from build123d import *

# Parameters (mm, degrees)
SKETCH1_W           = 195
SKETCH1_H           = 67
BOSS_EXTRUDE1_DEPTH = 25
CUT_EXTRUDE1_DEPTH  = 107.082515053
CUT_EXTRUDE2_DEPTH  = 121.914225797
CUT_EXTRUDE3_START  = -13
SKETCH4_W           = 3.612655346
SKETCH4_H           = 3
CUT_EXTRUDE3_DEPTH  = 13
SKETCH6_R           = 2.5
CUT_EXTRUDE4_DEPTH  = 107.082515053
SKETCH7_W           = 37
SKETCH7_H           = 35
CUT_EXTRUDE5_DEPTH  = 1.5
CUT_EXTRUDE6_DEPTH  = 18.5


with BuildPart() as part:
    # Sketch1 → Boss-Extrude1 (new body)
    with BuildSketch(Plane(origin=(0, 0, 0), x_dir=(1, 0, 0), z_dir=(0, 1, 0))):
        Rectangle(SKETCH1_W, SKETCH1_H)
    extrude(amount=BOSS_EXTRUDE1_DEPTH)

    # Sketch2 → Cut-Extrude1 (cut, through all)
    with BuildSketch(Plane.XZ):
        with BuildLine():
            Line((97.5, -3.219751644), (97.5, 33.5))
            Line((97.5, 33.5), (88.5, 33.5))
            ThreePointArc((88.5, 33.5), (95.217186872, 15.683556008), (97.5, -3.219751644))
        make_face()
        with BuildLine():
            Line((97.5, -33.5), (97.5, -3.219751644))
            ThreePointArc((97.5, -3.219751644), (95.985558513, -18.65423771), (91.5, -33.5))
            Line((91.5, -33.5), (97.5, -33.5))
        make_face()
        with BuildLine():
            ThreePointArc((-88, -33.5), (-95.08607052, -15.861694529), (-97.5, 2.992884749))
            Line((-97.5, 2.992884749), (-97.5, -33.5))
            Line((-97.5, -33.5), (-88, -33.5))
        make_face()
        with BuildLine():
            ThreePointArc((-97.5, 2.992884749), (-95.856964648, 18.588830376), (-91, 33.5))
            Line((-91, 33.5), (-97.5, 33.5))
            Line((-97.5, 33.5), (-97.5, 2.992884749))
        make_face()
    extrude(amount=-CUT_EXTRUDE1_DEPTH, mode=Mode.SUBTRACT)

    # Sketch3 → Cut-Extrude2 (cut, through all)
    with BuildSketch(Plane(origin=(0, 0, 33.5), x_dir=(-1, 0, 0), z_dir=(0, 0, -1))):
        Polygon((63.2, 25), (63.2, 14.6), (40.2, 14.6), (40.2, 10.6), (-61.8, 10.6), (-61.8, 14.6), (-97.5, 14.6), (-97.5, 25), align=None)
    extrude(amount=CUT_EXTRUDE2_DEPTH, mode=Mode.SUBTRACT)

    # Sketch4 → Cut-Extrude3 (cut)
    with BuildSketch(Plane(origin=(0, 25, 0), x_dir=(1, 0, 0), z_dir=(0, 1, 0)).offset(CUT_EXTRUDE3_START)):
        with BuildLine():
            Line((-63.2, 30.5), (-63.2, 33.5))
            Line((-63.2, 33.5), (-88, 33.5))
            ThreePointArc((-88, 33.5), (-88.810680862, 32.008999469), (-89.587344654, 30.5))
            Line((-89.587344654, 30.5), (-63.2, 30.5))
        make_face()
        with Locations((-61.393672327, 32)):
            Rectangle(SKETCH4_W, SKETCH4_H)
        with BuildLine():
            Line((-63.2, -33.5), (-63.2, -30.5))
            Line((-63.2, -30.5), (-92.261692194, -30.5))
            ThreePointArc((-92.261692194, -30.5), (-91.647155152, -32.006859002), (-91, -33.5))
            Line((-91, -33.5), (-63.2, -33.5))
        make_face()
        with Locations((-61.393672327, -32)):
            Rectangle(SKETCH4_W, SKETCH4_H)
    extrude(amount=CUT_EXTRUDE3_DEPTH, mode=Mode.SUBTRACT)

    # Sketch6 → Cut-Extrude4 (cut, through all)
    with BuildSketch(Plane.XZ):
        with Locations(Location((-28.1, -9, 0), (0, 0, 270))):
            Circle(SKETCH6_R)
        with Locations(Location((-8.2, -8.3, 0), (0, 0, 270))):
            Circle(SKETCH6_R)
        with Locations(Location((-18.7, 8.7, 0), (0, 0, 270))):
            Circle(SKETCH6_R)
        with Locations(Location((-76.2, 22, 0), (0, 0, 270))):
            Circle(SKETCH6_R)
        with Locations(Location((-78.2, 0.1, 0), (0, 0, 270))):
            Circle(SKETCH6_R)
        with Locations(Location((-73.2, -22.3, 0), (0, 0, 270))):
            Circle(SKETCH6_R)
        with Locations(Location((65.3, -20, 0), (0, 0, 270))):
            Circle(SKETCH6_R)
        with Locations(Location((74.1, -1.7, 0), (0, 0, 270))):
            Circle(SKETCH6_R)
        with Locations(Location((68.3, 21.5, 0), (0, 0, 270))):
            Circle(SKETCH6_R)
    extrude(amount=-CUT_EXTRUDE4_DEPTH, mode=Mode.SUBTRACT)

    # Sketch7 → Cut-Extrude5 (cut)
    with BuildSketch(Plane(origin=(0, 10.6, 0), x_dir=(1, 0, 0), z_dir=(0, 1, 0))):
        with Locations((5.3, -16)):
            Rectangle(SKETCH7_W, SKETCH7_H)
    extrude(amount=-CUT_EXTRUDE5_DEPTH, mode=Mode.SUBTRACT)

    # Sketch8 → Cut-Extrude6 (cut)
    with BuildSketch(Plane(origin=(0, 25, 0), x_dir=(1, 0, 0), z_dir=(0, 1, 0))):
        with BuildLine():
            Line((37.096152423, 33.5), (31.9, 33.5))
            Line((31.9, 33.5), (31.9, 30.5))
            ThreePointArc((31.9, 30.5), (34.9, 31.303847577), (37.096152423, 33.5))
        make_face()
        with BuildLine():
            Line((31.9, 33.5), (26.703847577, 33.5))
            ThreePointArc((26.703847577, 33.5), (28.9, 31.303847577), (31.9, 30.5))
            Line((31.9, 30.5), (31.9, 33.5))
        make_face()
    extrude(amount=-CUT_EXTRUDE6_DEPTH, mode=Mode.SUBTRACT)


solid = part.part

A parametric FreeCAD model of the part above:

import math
import FreeCAD as App
import Part
import Sketcher

V = App.Vector


def add_polygon(sketch, points):
    """Adds a closed chain of lines whose ends are joined by coincident constraints."""
    first, n = sketch.GeometryCount, len(points)
    for a, b in zip(points, points[1:] + points[:1]):
        sketch.addGeometry(Part.LineSegment(App.Vector(*a, 0), App.Vector(*b, 0)), False)
    for i in range(n):
        sketch.addConstraint(Sketcher.Constraint("Coincident", first + i, 2, first + (i + 1) % n, 1))

doc = App.newDocument("Part")
body = doc.addObject("PartDesign::Body", "Body")

sketch1 = body.newObject("Sketcher::SketchObject", "Sketch")
sketch1.AttachmentSupport = (doc.getObject("XZ_Plane"), [""])
sketch1.MapMode = "FlatFace"
add_polygon(sketch1, [(-97.5, -33.5), (-97.5, 33.5), (97.5, 33.5), (97.5, -33.5)])
sketch1.addConstraint(Sketcher.Constraint("Vertical", 0))
sketch1.addConstraint(Sketcher.Constraint("Horizontal", 1))
sketch1.addConstraint(Sketcher.Constraint("Vertical", 2))
sketch1.addConstraint(Sketcher.Constraint("Horizontal", 3))
sketch1.addConstraint(Sketcher.Constraint("Symmetric", 0, 2, 2, 2, -1, 1))
sketch1.addConstraint(Sketcher.Constraint("DistanceX", 1, 1, 1, 2, 195.0))
sketch1.addConstraint(Sketcher.Constraint("DistanceY", 0, 1, 0, 2, 67.0))
pad1 = body.newObject("PartDesign::Pad", "Pad")
pad1.Profile = sketch1
pad1.Length = 25
pad1.Reversed = True

sketch2 = body.newObject("Sketcher::SketchObject", "Sketch001")
sketch2.AttachmentSupport = (doc.getObject("XZ_Plane"), [""])
sketch2.MapMode = "FlatFace"
sketch2.addGeometry(Part.LineSegment(V(97.5, -3.219752, 0), V(97.5, 33.5, 0)), False)
sketch2.addGeometry(Part.LineSegment(V(97.5, 33.5, 0), V(88.5, 33.5, 0)), False)
sketch2.addGeometry(Part.ArcOfCircle(Part.Circle(V(18.092213, -3.219752, 0), V(0, 0, 1), 79.407787), math.radians(0), math.radians(27.543379)), False)
sketch2.addGeometry(Part.LineSegment(V(97.5, -33.5, 0), V(97.5, -3.219752, 0)), False)
sketch2.addGeometry(Part.ArcOfCircle(Part.Circle(V(18.092213, -3.219752, 0), V(0, 0, 1), 79.407787), math.radians(-22.415838), math.radians(0)), False)
sketch2.addGeometry(Part.LineSegment(V(91.5, -33.5, 0), V(97.5, -33.5, 0)), False)
sketch2.addGeometry(Part.ArcOfCircle(Part.Circle(V(-22.658915, 2.992884, 0), V(0, 0, 1), 74.841085), math.radians(180), math.radians(209.183284)), False)
sketch2.addGeometry(Part.LineSegment(V(-97.5, 2.992885, 0), V(-97.5, -33.5, 0)), False)
sketch2.addGeometry(Part.LineSegment(V(-97.5, -33.5, 0), V(-88, -33.5, 0)), False)
sketch2.addGeometry(Part.ArcOfCircle(Part.Circle(V(-22.658915, 2.992884, 0), V(0, 0, 1), 74.841085), math.radians(155.944256), math.radians(180)), False)
sketch2.addGeometry(Part.LineSegment(V(-91, 33.5, 0), V(-97.5, 33.5, 0)), False)
sketch2.addGeometry(Part.LineSegment(V(-97.5, 33.5, 0), V(-97.5, 2.992885, 0)), False)
sketch2.addConstraint(Sketcher.Constraint("Coincident", 0, 2, 1, 1))
sketch2.addConstraint(Sketcher.Constraint("Coincident", 1, 2, 2, 2))
sketch2.addConstraint(Sketcher.Constraint("Tangent", 2, 1, 0, 1))
sketch2.addConstraint(Sketcher.Constraint("Tangent", 3, 2, 4, 2))
sketch2.addConstraint(Sketcher.Constraint("Coincident", 4, 1, 5, 1))
sketch2.addConstraint(Sketcher.Constraint("Coincident", 5, 2, 3, 1))
sketch2.addConstraint(Sketcher.Constraint("Tangent", 6, 1, 7, 1))
sketch2.addConstraint(Sketcher.Constraint("Coincident", 7, 2, 8, 1))
sketch2.addConstraint(Sketcher.Constraint("Coincident", 8, 2, 6, 2))
sketch2.addConstraint(Sketcher.Constraint("Coincident", 9, 1, 10, 1))
sketch2.addConstraint(Sketcher.Constraint("Coincident", 10, 2, 11, 1))
sketch2.addConstraint(Sketcher.Constraint("Tangent", 11, 2, 9, 2))
sketch2.addConstraint(Sketcher.Constraint("Vertical", 0))
sketch2.addConstraint(Sketcher.Constraint("Horizontal", 1))
sketch2.addConstraint(Sketcher.Constraint("Vertical", 3))
sketch2.addConstraint(Sketcher.Constraint("Horizontal", 5))
sketch2.addConstraint(Sketcher.Constraint("Vertical", 7))
sketch2.addConstraint(Sketcher.Constraint("Horizontal", 8))
sketch2.addConstraint(Sketcher.Constraint("Horizontal", 10))
sketch2.addConstraint(Sketcher.Constraint("Vertical", 11))
sketch2.addConstraint(Sketcher.Constraint("Coincident", 4, 3, 2, 3))
sketch2.addConstraint(Sketcher.Constraint("Coincident", 9, 3, 6, 3))
sketch2.addConstraint(Sketcher.Constraint("Equal", 2, 4))
sketch2.addConstraint(Sketcher.Constraint("Equal", 6, 9))
sketch2.addConstraint(Sketcher.Constraint("Symmetric", 0, 2, 7, 2, -1, 1))
sketch2.addConstraint(Sketcher.Constraint("Horizontal", 5, 2, 7, 2))
sketch2.addConstraint(Sketcher.Constraint("Horizontal", 1, 2, 9, 1))
sketch2.addConstraint(Sketcher.Constraint("DistanceX", 1, 2, 1, 1, 9.0))
sketch2.addConstraint(Sketcher.Constraint("DistanceX", 5, 1, 5, 2, 6.0))
sketch2.addConstraint(Sketcher.Constraint("DistanceX", 8, 1, 8, 2, 9.5))
sketch2.addConstraint(Sketcher.Constraint("DistanceX", 10, 2, 10, 1, 6.5))
sketch2.addConstraint(Sketcher.Constraint("DistanceX", 8, 2, -1, 1, 88.0))
sketch2.addConstraint(Sketcher.Constraint("DistanceY", 4, 1, 1, 2, 67.0))
pocket1 = body.newObject("PartDesign::Pocket", "Pocket")
pocket1.Profile = sketch2
pocket1.Type = "ThroughAll"

sketch3 = body.newObject("Sketcher::SketchObject", "Sketch002")
sketch3.AttachmentSupport = (doc.getObject("XY_Plane"), [""])
sketch3.MapMode = "FlatFace"
sketch3.AttachmentOffset = App.Placement(V(0, 0, 33.5), App.Rotation())
add_polygon(sketch3, [(-63.2, 14.6), (-63.2, 25), (97.5, 25), (97.5, 14.6), (61.8, 14.6), (61.8, 10.6), (-40.2, 10.6), (-40.2, 14.6)])
sketch3.addConstraint(Sketcher.Constraint("Vertical", 0))
sketch3.addConstraint(Sketcher.Constraint("Horizontal", 1))
sketch3.addConstraint(Sketcher.Constraint("Vertical", 2))
sketch3.addConstraint(Sketcher.Constraint("Horizontal", 3))
sketch3.addConstraint(Sketcher.Constraint("Vertical", 4))
sketch3.addConstraint(Sketcher.Constraint("Horizontal", 5))
sketch3.addConstraint(Sketcher.Constraint("Vertical", 6))
sketch3.addConstraint(Sketcher.Constraint("Horizontal", 7))
sketch3.addConstraint(Sketcher.Constraint("Horizontal", 3, 2, 6, 2))
sketch3.addConstraint(Sketcher.Constraint("DistanceX", 5, 2, 5, 1, 102.0))
sketch3.addConstraint(Sketcher.Constraint("DistanceX", 7, 2, 7, 1, 23.0))
sketch3.addConstraint(Sketcher.Constraint("DistanceY", 4, 2, 4, 1, 4.0))
sketch3.addConstraint(Sketcher.Constraint("DistanceX", 1, 1, 1, 2, 160.7))
sketch3.addConstraint(Sketcher.Constraint("DistanceY", 0, 1, 0, 2, 10.4))
sketch3.addConstraint(Sketcher.Constraint("DistanceY", -1, 1, 0, 2, 25.0))
sketch3.addConstraint(Sketcher.Constraint("DistanceX", 0, 2, -1, 1, 63.2))
pocket2 = body.newObject("PartDesign::Pocket", "Pocket001")
pocket2.Profile = sketch3
pocket2.Type = "ThroughAll"

sketch4 = body.newObject("Sketcher::SketchObject", "Sketch003")
sketch4.AttachmentSupport = (doc.getObject("XZ_Plane"), [""])
sketch4.MapMode = "FlatFace"
sketch4.AttachmentOffset = App.Placement(V(0, 0, -12), App.Rotation())
sketch4.addGeometry(Part.ArcOfCircle(Part.Circle(V(-22.658914, 2.992885, 0), V(0, 0, 1), 74.841086), math.radians(-153.415317), math.radians(-150.816716)), False)
sketch4.addGeometry(Part.LineSegment(V(-89.587345, -30.5, 0), V(-59.587345, -30.5, 0)), False)
sketch4.addGeometry(Part.LineSegment(V(-59.587345, -30.5, 0), V(-59.587345, -33.5, 0)), False)
sketch4.addGeometry(Part.LineSegment(V(-59.587345, -33.5, 0), V(-88, -33.5, 0)), False)
sketch4.addGeometry(Part.ArcOfCircle(Part.Circle(V(-22.658915, 2.992884, 0), V(0, 0, 1), 74.841085), math.radians(155.944256), math.radians(158.435998)), False)
sketch4.addGeometry(Part.LineSegment(V(-91, 33.5, 0), V(-59.587345, 33.5, 0)), False)
sketch4.addGeometry(Part.LineSegment(V(-59.587345, 33.5, 0), V(-59.587345, 30.5, 0)), False)
sketch4.addGeometry(Part.LineSegment(V(-59.587345, 30.5, 0), V(-92.261692, 30.5, 0)), False)
sketch4.addConstraint(Sketcher.Constraint("Coincident", 0, 1, 1, 1))
sketch4.addConstraint(Sketcher.Constraint("Coincident", 1, 2, 2, 1))
sketch4.addConstraint(Sketcher.Constraint("Coincident", 2, 2, 3, 1))
sketch4.addConstraint(Sketcher.Constraint("Coincident", 3, 2, 0, 2))
sketch4.addConstraint(Sketcher.Constraint("Coincident", 4, 1, 5, 1))
sketch4.addConstraint(Sketcher.Constraint("Coincident", 5, 2, 6, 1))
sketch4.addConstraint(Sketcher.Constraint("Coincident", 6, 2, 7, 1))
sketch4.addConstraint(Sketcher.Constraint("Coincident", 7, 2, 4, 2))
sketch4.addConstraint(Sketcher.Constraint("Horizontal", 1))
sketch4.addConstraint(Sketcher.Constraint("Vertical", 2))
sketch4.addConstraint(Sketcher.Constraint("Horizontal", 3))
sketch4.addConstraint(Sketcher.Constraint("Horizontal", 5))
sketch4.addConstraint(Sketcher.Constraint("Vertical", 6))
sketch4.addConstraint(Sketcher.Constraint("Horizontal", 7))
sketch4.addConstraint(Sketcher.Constraint("Coincident", 4, 3, 0, 3))
sketch4.addConstraint(Sketcher.Constraint("Equal", 0, 4))
sketch4.addConstraint(Sketcher.Constraint("Symmetric", 2, 2, 5, 2, -1))
sketch4.addConstraint(Sketcher.Constraint("Equal", 2, 6))
sketch4.addConstraint(Sketcher.Constraint("DistanceX", 1, 1, 1, 2, 30.0))
sketch4.addConstraint(Sketcher.Constraint("DistanceY", 2, 2, 2, 1, 3.0))
sketch4.addConstraint(Sketcher.Constraint("DistanceX", 3, 2, -1, 1, 88.0))
sketch4.addConstraint(Sketcher.Constraint("DistanceX", 4, 1, -1, 1, 91.0))
sketch4.addConstraint(Sketcher.Constraint("DistanceY", 0, 1, 4, 1, 64.0))
sketch4.addConstraint(Sketcher.Constraint("Radius", 0, 74.841086))
pocket3 = body.newObject("PartDesign::Pocket", "Pocket002")
pocket3.Profile = sketch4
pocket3.Length = 13

sketch5 = body.newObject("Sketcher::SketchObject", "Sketch004")
sketch5.AttachmentSupport = (doc.getObject("XZ_Plane"), [""])
sketch5.MapMode = "FlatFace"
sketch5.addGeometry(Part.Circle(V(-28.1, -9, 0), V(0, 0, 1), 2.5), False)
sketch5.addGeometry(Part.Circle(V(-8.2, -8.3, 0), V(0, 0, 1), 2.5), False)
sketch5.addGeometry(Part.Circle(V(-18.7, 8.7, 0), V(0, 0, 1), 2.5), False)
sketch5.addGeometry(Part.Circle(V(-76.2, 22, 0), V(0, 0, 1), 2.5), False)
sketch5.addGeometry(Part.Circle(V(-78.2, 0.1, 0), V(0, 0, 1), 2.5), False)
sketch5.addGeometry(Part.Circle(V(-73.2, -22.3, 0), V(0, 0, 1), 2.5), False)
sketch5.addGeometry(Part.Circle(V(65.3, -20, 0), V(0, 0, 1), 2.5), False)
sketch5.addGeometry(Part.Circle(V(74.1, -1.7, 0), V(0, 0, 1), 2.5), False)
sketch5.addGeometry(Part.Circle(V(68.3, 21.5, 0), V(0, 0, 1), 2.5), False)
sketch5.addConstraint(Sketcher.Constraint("Equal", 0, 1))
sketch5.addConstraint(Sketcher.Constraint("Equal", 1, 2))
sketch5.addConstraint(Sketcher.Constraint("Equal", 2, 3))
sketch5.addConstraint(Sketcher.Constraint("Equal", 3, 4))
sketch5.addConstraint(Sketcher.Constraint("Equal", 4, 5))
sketch5.addConstraint(Sketcher.Constraint("Equal", 5, 6))
sketch5.addConstraint(Sketcher.Constraint("Equal", 6, 7))
sketch5.addConstraint(Sketcher.Constraint("Equal", 7, 8))
sketch5.addConstraint(Sketcher.Constraint("Diameter", 0, 5.0))
sketch5.addConstraint(Sketcher.Constraint("DistanceY", 0, 3, -1, 1, 9.0))
sketch5.addConstraint(Sketcher.Constraint("DistanceY", -1, 1, 3, 3, 22.0))
sketch5.addConstraint(Sketcher.Constraint("DistanceY", 6, 3, -1, 1, 20.0))
sketch5.addConstraint(Sketcher.Constraint("DistanceY", 1, 3, 2, 3, 17.0))
sketch5.addConstraint(Sketcher.Constraint("DistanceX", 3, 3, 1, 3, 68.0))
sketch5.addConstraint(Sketcher.Constraint("DistanceX", 4, 3, 3, 3, 2.0))
sketch5.addConstraint(Sketcher.Constraint("DistanceX", 4, 3, 5, 3, 5.0))
sketch5.addConstraint(Sketcher.Constraint("DistanceY", 5, 3, 2, 3, 31.0))
sketch5.addConstraint(Sketcher.Constraint("DistanceX", 2, 3, 6, 3, 84.0))
sketch5.addConstraint(Sketcher.Constraint("DistanceX", 6, 3, 8, 3, 3.0))
sketch5.addConstraint(Sketcher.Constraint("DistanceX", 0, 3, -1, 1, 28.1))
sketch5.addConstraint(Sketcher.Constraint("DistanceX", 1, 3, -1, 1, 8.2))
sketch5.addConstraint(Sketcher.Constraint("DistanceY", 1, 3, -1, 1, 8.3))
sketch5.addConstraint(Sketcher.Constraint("DistanceX", 2, 3, -1, 1, 18.7))
sketch5.addConstraint(Sketcher.Constraint("DistanceY", -1, 1, 4, 3, 0.1))
sketch5.addConstraint(Sketcher.Constraint("DistanceX", -1, 1, 7, 3, 74.1))
sketch5.addConstraint(Sketcher.Constraint("DistanceY", 7, 3, -1, 1, 1.7))
sketch5.addConstraint(Sketcher.Constraint("DistanceY", -1, 1, 8, 3, 21.5))
pocket4 = body.newObject("PartDesign::Pocket", "Pocket003")
pocket4.Profile = sketch5
pocket4.Type = "ThroughAll"

sketch6 = body.newObject("Sketcher::SketchObject", "Sketch005")
sketch6.AttachmentSupport = (doc.getObject("XZ_Plane"), [""])
sketch6.MapMode = "FlatFace"
sketch6.AttachmentOffset = App.Placement(V(0, 0, -10.6), App.Rotation())
add_polygon(sketch6, [(-13.2, -1.5), (-13.2, 33.5), (23.8, 33.5), (23.8, -1.5)])
sketch6.addConstraint(Sketcher.Constraint("Vertical", 0))
sketch6.addConstraint(Sketcher.Constraint("Horizontal", 1))
sketch6.addConstraint(Sketcher.Constraint("Vertical", 2))
sketch6.addConstraint(Sketcher.Constraint("Horizontal", 3))
sketch6.addConstraint(Sketcher.Constraint("DistanceX", 1, 1, 1, 2, 37.0))
sketch6.addConstraint(Sketcher.Constraint("DistanceY", 0, 1, 0, 2, 35.0))
sketch6.addConstraint(Sketcher.Constraint("DistanceX", 0, 2, -1, 1, 13.2))
sketch6.addConstraint(Sketcher.Constraint("DistanceY", -1, 1, 0, 2, 33.5))
pocket5 = body.newObject("PartDesign::Pocket", "Pocket004")
pocket5.Profile = sketch6
pocket5.Length = 1.5
pocket5.Reversed = True

sketch7 = body.newObject("Sketcher::SketchObject", "Sketch006")
sketch7.AttachmentSupport = (doc.getObject("XZ_Plane"), [""])
sketch7.MapMode = "FlatFace"
sketch7.AttachmentOffset = App.Placement(V(0, 0, -25), App.Rotation())
sketch7.addGeometry(Part.LineSegment(V(37.096152, -33.5, 0), V(26.703848, -33.5, 0)), False)
sketch7.addGeometry(Part.ArcOfCircle(Part.Circle(V(31.9, -36.5, 0), V(0, 0, 1), 6), math.radians(90), math.radians(150)), False)
sketch7.addGeometry(Part.ArcOfCircle(Part.Circle(V(31.9, -36.5, 0), V(0, 0, 1), 6), math.radians(30), math.radians(90)), False)
sketch7.addConstraint(Sketcher.Constraint("Coincident", 0, 2, 1, 2))
sketch7.addConstraint(Sketcher.Constraint("Tangent", 1, 1, 2, 2))
sketch7.addConstraint(Sketcher.Constraint("Coincident", 2, 1, 0, 1))
sketch7.addConstraint(Sketcher.Constraint("Horizontal", 0))
sketch7.addConstraint(Sketcher.Constraint("Equal", 1, 2))
sketch7.addConstraint(Sketcher.Constraint("Vertical", 2, 3, 1, 1))
sketch7.addConstraint(Sketcher.Constraint("Radius", 1, 6.0))
sketch7.addConstraint(Sketcher.Constraint("DistanceY", 1, 3, 0, 2, 3.0))
sketch7.addConstraint(Sketcher.Constraint("DistanceX", -1, 1, 1, 3, 31.9))
sketch7.addConstraint(Sketcher.Constraint("DistanceY", 1, 3, -1, 1, 36.5))
pocket6 = body.newObject("PartDesign::Pocket", "Pocket005")
pocket6.Profile = sketch7
pocket6.Length = 18.5
pocket6.Reversed = True

doc.recompute()
